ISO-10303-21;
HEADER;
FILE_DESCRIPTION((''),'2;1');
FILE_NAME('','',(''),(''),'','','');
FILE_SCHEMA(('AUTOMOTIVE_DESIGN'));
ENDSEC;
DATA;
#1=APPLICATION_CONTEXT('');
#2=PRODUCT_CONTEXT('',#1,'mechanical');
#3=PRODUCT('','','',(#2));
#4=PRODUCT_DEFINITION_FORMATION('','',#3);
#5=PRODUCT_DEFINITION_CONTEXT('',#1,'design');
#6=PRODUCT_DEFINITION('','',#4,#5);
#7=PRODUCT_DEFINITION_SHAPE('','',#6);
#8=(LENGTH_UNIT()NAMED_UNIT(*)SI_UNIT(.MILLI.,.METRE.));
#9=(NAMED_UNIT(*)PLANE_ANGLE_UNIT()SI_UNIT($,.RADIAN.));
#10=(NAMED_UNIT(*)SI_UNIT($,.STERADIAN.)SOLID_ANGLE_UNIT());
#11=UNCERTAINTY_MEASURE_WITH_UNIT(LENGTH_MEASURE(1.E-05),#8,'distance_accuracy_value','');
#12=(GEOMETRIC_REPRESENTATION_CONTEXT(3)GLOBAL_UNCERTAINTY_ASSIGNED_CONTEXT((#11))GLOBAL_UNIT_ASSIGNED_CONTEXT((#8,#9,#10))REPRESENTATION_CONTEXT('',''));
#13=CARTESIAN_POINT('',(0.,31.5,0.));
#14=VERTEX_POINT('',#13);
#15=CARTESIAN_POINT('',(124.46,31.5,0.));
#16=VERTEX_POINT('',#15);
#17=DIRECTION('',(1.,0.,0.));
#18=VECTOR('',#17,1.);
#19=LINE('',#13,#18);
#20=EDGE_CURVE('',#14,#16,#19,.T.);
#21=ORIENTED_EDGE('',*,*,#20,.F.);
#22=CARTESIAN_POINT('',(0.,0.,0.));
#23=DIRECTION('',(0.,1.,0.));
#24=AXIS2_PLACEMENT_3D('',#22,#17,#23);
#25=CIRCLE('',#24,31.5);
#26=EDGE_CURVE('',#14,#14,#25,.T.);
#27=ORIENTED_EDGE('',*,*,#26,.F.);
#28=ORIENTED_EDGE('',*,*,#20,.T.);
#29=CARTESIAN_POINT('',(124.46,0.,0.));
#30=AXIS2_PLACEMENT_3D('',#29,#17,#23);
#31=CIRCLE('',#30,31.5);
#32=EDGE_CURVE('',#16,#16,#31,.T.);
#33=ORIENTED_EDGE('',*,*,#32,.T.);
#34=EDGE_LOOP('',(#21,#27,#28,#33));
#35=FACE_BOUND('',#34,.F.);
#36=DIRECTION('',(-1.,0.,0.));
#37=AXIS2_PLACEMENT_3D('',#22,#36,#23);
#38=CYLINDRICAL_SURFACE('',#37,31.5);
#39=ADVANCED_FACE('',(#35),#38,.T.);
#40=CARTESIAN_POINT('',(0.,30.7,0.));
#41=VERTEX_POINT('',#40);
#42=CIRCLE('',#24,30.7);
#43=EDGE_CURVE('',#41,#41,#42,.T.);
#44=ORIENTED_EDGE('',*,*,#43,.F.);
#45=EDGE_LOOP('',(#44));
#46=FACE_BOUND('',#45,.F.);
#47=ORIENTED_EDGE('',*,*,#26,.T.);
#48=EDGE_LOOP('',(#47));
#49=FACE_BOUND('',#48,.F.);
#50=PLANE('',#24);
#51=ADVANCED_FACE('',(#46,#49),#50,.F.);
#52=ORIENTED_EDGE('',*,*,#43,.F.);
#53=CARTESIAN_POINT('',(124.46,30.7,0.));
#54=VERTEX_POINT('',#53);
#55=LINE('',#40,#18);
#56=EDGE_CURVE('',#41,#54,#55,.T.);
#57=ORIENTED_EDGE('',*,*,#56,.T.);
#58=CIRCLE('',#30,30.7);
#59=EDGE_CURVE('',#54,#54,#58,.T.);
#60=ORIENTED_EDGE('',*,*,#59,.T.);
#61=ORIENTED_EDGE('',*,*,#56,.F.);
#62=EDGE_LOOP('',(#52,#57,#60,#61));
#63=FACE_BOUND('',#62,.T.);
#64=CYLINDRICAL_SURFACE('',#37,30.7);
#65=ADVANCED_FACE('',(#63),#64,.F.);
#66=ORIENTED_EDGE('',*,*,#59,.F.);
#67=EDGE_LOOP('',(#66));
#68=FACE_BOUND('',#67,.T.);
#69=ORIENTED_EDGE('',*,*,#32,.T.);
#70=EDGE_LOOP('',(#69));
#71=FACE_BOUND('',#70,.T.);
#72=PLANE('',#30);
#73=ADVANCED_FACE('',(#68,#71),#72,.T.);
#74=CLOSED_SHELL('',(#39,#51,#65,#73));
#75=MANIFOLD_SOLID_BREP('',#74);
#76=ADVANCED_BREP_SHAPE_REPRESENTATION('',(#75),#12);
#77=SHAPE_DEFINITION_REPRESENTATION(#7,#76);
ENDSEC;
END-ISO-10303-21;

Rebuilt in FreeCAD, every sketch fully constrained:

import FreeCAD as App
import Part
import Sketcher

V = App.Vector

doc = App.newDocument("Part")
body = doc.addObject("PartDesign::Body", "Body")

sketch1 = doc.addObject("Sketcher::SketchObject", "Sketch")
body.addObject(sketch1)
sketch1.AttachmentSupport = (doc.YZ_Plane, [""])
sketch1.MapMode = "FlatFace"
sketch1.addGeometry([
    Part.Circle(V(0, 0, 0), V(0, 0, 1), 32),
    Part.Circle(V(0, 0, 0), V(0, 0, 1), 31),
], False)
sketch1.addConstraint([
    Sketcher.Constraint("Coincident", 0, 3, -1, 1),
    Sketcher.Constraint("Coincident", 1, 3, -1, 1),
    Sketcher.Constraint("Diameter", 0, 63.0),
    Sketcher.Constraint("Diameter", 1, 61.4),
])
pad1 = doc.addObject("PartDesign::Pad", "Pad")
body.addObject(pad1)
pad1.Profile = sketch1
pad1.Length = 124.46

doc.recompute()
